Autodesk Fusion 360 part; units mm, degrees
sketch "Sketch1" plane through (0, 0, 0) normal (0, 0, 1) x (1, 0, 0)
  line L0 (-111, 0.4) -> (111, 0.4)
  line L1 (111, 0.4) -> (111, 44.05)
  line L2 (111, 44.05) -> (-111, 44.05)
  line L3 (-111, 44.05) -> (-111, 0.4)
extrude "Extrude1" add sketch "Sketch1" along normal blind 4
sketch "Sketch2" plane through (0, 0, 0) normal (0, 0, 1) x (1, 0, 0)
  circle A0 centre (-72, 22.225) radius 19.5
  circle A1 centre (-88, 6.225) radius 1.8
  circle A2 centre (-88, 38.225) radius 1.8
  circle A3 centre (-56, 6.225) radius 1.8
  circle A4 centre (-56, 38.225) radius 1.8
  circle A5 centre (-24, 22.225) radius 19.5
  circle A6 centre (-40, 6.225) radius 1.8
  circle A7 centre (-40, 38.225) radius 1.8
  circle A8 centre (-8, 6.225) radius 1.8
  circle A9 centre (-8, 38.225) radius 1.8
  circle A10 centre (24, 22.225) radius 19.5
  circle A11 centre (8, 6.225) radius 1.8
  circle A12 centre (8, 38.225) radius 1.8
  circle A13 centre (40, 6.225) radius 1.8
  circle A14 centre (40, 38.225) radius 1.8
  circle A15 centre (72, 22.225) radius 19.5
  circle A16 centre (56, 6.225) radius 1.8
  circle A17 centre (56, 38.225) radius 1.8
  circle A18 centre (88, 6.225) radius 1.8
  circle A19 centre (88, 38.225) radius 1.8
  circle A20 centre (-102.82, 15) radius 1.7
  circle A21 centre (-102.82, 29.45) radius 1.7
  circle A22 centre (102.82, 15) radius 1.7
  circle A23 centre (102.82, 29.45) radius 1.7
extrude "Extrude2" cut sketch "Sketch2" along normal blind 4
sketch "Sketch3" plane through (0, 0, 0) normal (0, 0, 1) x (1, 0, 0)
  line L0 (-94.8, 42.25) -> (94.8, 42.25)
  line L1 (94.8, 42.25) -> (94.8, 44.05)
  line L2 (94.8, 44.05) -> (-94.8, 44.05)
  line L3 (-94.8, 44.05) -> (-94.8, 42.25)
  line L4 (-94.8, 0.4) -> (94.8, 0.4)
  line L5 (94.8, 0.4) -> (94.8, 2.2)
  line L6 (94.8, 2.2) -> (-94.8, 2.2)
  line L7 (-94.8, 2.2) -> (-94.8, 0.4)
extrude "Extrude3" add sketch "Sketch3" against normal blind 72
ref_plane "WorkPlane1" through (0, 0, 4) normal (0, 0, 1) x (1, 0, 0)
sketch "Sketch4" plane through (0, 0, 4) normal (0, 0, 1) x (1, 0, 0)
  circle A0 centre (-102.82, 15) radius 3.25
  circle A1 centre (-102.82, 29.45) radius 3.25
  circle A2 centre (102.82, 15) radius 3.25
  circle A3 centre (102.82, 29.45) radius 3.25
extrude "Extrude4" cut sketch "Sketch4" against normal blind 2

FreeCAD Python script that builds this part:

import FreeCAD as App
import Part
import Sketcher
from FreeCAD import Vector

doc = App.newDocument("Part")
body = doc.addObject("PartDesign::Body", "Body")

# Sketch on XY plane
sketch1 = doc.addObject("Sketcher::SketchObject", "Sketch")
body.addObject(sketch1)
sketch1.AttachmentSupport = (doc.XY_Plane, [""])
sketch1.MapMode = "FlatFace"
sketch1.addGeometry([
    Part.LineSegment(Vector(-111, 44, 0), Vector(-111, 0, 0)),
    Part.LineSegment(Vector(-111, 0, 0), Vector(111, 0, 0)),
    Part.LineSegment(Vector(111, 0, 0), Vector(111, 44, 0)),
    Part.LineSegment(Vector(111, 44, 0), Vector(-111, 44, 0)),
], False)
sketch1.addConstraint([
    Sketcher.Constraint("Coincident", 0, 2, 1, 1),
    Sketcher.Constraint("Coincident", 1, 2, 2, 1),
    Sketcher.Constraint("Coincident", 2, 2, 3, 1),
    Sketcher.Constraint("Coincident", 3, 2, 0, 1),
    Sketcher.Constraint("Vertical", 0),
    Sketcher.Constraint("Horizontal", 1),
    Sketcher.Constraint("Vertical", 2),
    Sketcher.Constraint("Horizontal", 3),
    Sketcher.Constraint("DistanceX", 1, 1, 1, 2, 222.0),
    Sketcher.Constraint("DistanceX", 0, 2, -1, 1, 111.0),
    Sketcher.Constraint("DistanceY", 0, 2, 0, 1, 43.65),
    Sketcher.Constraint("DistanceY", -1, 1, 0, 2, 0.4),
])
pad1 = doc.addObject("PartDesign::Pad", "Pad")
body.addObject(pad1)
pad1.Profile = sketch1
pad1.Length = 4

# Sketch on XY plane
sketch2 = doc.addObject("Sketcher::SketchObject", "Sketch001")
body.addObject(sketch2)
sketch2.AttachmentSupport = (doc.XY_Plane, [""])
sketch2.MapMode = "FlatFace"
sketch2.addGeometry([
    Part.Circle(Vector(-72, 22.2, 0), Vector(0, 0, 1), 19.5),  # 0
    Part.Circle(Vector(-88, 6.2, 0), Vector(0, 0, 1), 1.8),  # 1
    Part.Circle(Vector(-88, 38.2, 0), Vector(0, 0, 1), 1.8),  # 2
    Part.Circle(Vector(-56, 6.2, 0), Vector(0, 0, 1), 1.8),  # 3
    Part.Circle(Vector(-56, 38.2, 0), Vector(0, 0, 1), 1.8),  # 4
    Part.Circle(Vector(-24, 22.2, 0), Vector(0, 0, 1), 19.5),  # 5
    Part.Circle(Vector(-40, 6.2, 0), Vector(0, 0, 1), 1.8),  # 6
    Part.Circle(Vector(-40, 38.2, 0), Vector(0, 0, 1), 1.8),  # 7
    Part.Circle(Vector(-8, 6.2, 0), Vector(0, 0, 1), 1.8),  # 8
    Part.Circle(Vector(-8, 38.2, 0), Vector(0, 0, 1), 1.8),  # 9
    Part.Circle(Vector(24, 22.2, 0), Vector(0, 0, 1), 19.5),  # 10
    Part.Circle(Vector(8, 6.2, 0), Vector(0, 0, 1), 1.8),  # 11
    Part.Circle(Vector(8, 38.2, 0), Vector(0, 0, 1), 1.8),  # 12
    Part.Circle(Vector(40, 6.2, 0), Vector(0, 0, 1), 1.8),  # 13
    Part.Circle(Vector(40, 38.2, 0), Vector(0, 0, 1), 1.8),  # 14
    Part.Circle(Vector(72, 22.2, 0), Vector(0, 0, 1), 19.5),  # 15
    Part.Circle(Vector(56, 6.2, 0), Vector(0, 0, 1), 1.8),  # 16
    Part.Circle(Vector(56, 38.2, 0), Vector(0, 0, 1), 1.8),  # 17
    Part.Circle(Vector(88, 6.2, 0), Vector(0, 0, 1), 1.8),  # 18
    Part.Circle(Vector(88, 38.2, 0), Vector(0, 0, 1), 1.8),  # 19
    Part.Circle(Vector(-102.8, 15, 0), Vector(0, 0, 1), 1.7),  # 20
    Part.Circle(Vector(-102.8, 29.4, 0), Vector(0, 0, 1), 1.7),  # 21
    Part.Circle(Vector(102.8, 15, 0), Vector(0, 0, 1), 1.7),  # 22
    Part.Circle(Vector(102.8, 29.4, 0), Vector(0, 0, 1), 1.7),  # 23
], False)
sketch2.addConstraint([
    Sketcher.Constraint("Equal", 1, 2),
    Sketcher.Constraint("Equal", 2, 3),
    Sketcher.Constraint("Equal", 3, 4),
    Sketcher.Constraint("Equal", 0, 5),
    Sketcher.Constraint("Equal", 4, 6),
    Sketcher.Constraint("Equal", 6, 7),
    Sketcher.Constraint("Equal", 7, 8),
    Sketcher.Constraint("Equal", 8, 9),
    Sketcher.Constraint("Equal", 5, 10),
    Sketcher.Constraint("Equal", 9, 11),
    Sketcher.Constraint("Equal", 11, 12),
    Sketcher.Constraint("Equal", 12, 13),
    Sketcher.Constraint("Equal", 13, 14),
    Sketcher.Constraint("Equal", 10, 15),
    Sketcher.Constraint("Equal", 14, 16),
    Sketcher.Constraint("Equal", 16, 17),
    Sketcher.Constraint("Equal", 17, 18),
    Sketcher.Constraint("Equal", 18, 19),
    Sketcher.Constraint("Equal", 20, 21),
    Sketcher.Constraint("Equal", 21, 22),
    Sketcher.Constraint("Equal", 22, 23),
    Sketcher.Constraint("Symmetric", 5, 3, 10, 3, -2),
    Sketcher.Constraint("Symmetric", 8, 3, 11, 3, -2),
    Sketcher.Constraint("Symmetric", 9, 3, 12, 3, -2),
    Sketcher.Constraint("Symmetric", 6, 3, 13, 3, -2),
    Sketcher.Constraint("Symmetric", 7, 3, 14, 3, -2),
    Sketcher.Constraint("Symmetric", 0, 3, 15, 3, -2),
    Sketcher.Constraint("Symmetric", 3, 3, 16, 3, -2),
    Sketcher.Constraint("Symmetric", 4, 3, 17, 3, -2),
    Sketcher.Constraint("Symmetric", 1, 3, 18, 3, -2),
    Sketcher.Constraint("Symmetric", 2, 3, 19, 3, -2),
    Sketcher.Constraint("Symmetric", 20, 3, 22, 3, -2),
    Sketcher.Constraint("Symmetric", 21, 3, 23, 3, -2),
    Sketcher.Constraint("Horizontal", 1, 3, 3, 3),
    Sketcher.Constraint("Horizontal", 2, 3, 4, 3),
    Sketcher.Constraint("Horizontal", 0, 3, 5, 3),
    Sketcher.Constraint("Horizontal", 3, 3, 6, 3),
    Sketcher.Constraint("Horizontal", 4, 3, 7, 3),
    Sketcher.Constraint("Horizontal", 6, 3, 8, 3),
    Sketcher.Constraint("Horizontal", 7, 3, 9, 3),
    Sketcher.Constraint("Vertical", 1, 3, 2, 3),
    Sketcher.Constraint("Vertical", 3, 3, 4, 3),
    Sketcher.Constraint("Vertical", 6, 3, 7, 3),
    Sketcher.Constraint("Vertical", 8, 3, 9, 3),
    Sketcher.Constraint("Vertical", 20, 3, 21, 3),
    Sketcher.Constraint("Diameter", 0, 39.0),
    Sketcher.Constraint("Diameter", 1, 3.6),
    Sketcher.Constraint("Diameter", 20, 3.4),
    Sketcher.Constraint("DistanceX", 0, 3, -1, 1, 72.0),
    Sketcher.Constraint("DistanceX", 1, 3, -1, 1, 88.0),
    Sketcher.Constraint("DistanceX", 3, 3, -1, 1, 56.0),
    Sketcher.Constraint("DistanceX", 5, 3, -1, 1, 24.0),
    Sketcher.Constraint("DistanceX", 6, 3, -1, 1, 40.0),
    Sketcher.Constraint("DistanceX", 8, 3, -1, 1, 8.0),
    Sketcher.Constraint("DistanceY", -1, 1, 20, 3, 15.0),
    Sketcher.Constraint("DistanceY", 1, 3, 0, 3, 16.0),
    Sketcher.Constraint("DistanceY", 0, 3, 2, 3, 16.0),
    Sketcher.Constraint("DistanceX", 20, 3, -1, 1, 102.82),
    Sketcher.Constraint("DistanceY", -1, 1, 21, 3, 29.45),
    Sketcher.Constraint("DistanceY", -1, 1, 0, 3, 22.225),
])
pocket1 = doc.addObject("PartDesign::Pocket", "Pocket")
body.addObject(pocket1)
pocket1.Profile = sketch2
pocket1.Length = 4
pocket1.Reversed = True

# Sketch on XY plane
sketch3 = doc.addObject("Sketcher::SketchObject", "Sketch002")
body.addObject(sketch3)
sketch3.AttachmentSupport = (doc.XY_Plane, [""])
sketch3.MapMode = "FlatFace"
sketch3.addGeometry([
    Part.LineSegment(Vector(-94.8, 44, 0), Vector(-94.8, 42.2, 0)),  # 0
    Part.LineSegment(Vector(-94.8, 42.2, 0), Vector(94.8, 42.2, 0)),  # 1
    Part.LineSegment(Vector(94.8, 42.2, 0), Vector(94.8, 44, 0)),  # 2
    Part.LineSegment(Vector(94.8, 44, 0), Vector(-94.8, 44, 0)),  # 3
    Part.LineSegment(Vector(-94.8, 2.2, 0), Vector(-94.8, 0.4, 0)),  # 4
    Part.LineSegment(Vector(-94.8, 0.4, 0), Vector(94.8, 0.4, 0)),  # 5
    Part.LineSegment(Vector(94.8, 0.4, 0), Vector(94.8, 2.2, 0)),  # 6
    Part.LineSegment(Vector(94.8, 2.2, 0), Vector(-94.8, 2.2, 0)),  # 7
], False)
sketch3.addConstraint([
    Sketcher.Constraint("Coincident", 0, 2, 1, 1),
    Sketcher.Constraint("Coincident", 1, 2, 2, 1),
    Sketcher.Constraint("Coincident", 2, 2, 3, 1),
    Sketcher.Constraint("Coincident", 3, 2, 0, 1),
    Sketcher.Constraint("Coincident", 4, 2, 5, 1),
    Sketcher.Constraint("Coincident", 5, 2, 6, 1),
    Sketcher.Constraint("Coincident", 6, 2, 7, 1),
    Sketcher.Constraint("Coincident", 7, 2, 4, 1),
    Sketcher.Constraint("Vertical", 0),
    Sketcher.Constraint("Horizontal", 1),
    Sketcher.Constraint("Vertical", 2),
    Sketcher.Constraint("Horizontal", 3),
    Sketcher.Constraint("Vertical", 4),
    Sketcher.Constraint("Horizontal", 5),
    Sketcher.Constraint("Vertical", 6),
    Sketcher.Constraint("Horizontal", 7),
    Sketcher.Constraint("Vertical", 3, 2, 4, 2),
    Sketcher.Constraint("Vertical", 2, 2, 5, 2),
    Sketcher.Constraint("Equal", 2, 4),
    Sketcher.Constraint("DistanceX", 1, 1, 1, 2, 189.6),
    Sketcher.Constraint("DistanceY", 0, 2, 0, 1, 1.8),
    Sketcher.Constraint("DistanceX", 0, 2, -1, 1, 94.8),
    Sketcher.Constraint("DistanceY", -1, 1, 4, 2, 0.4),
    Sketcher.Constraint("DistanceY", -1, 1, 0, 2, 42.25),
])
pad2 = doc.addObject("PartDesign::Pad", "Pad001")
body.addObject(pad2)
pad2.Profile = sketch3
pad2.Length = 72
pad2.Reversed = True

# Sketch on XY plane
sketch4 = doc.addObject("Sketcher::SketchObject", "Sketch003")
body.addObject(sketch4)
sketch4.AttachmentSupport = (doc.XY_Plane, [""])
sketch4.MapMode = "FlatFace"
sketch4.AttachmentOffset = App.Placement(Vector(0, 0, 4), App.Rotation())
sketch4.addGeometry([
    Part.Circle(Vector(-102.8, 15, 0), Vector(0, 0, 1), 3.2),
    Part.Circle(Vector(-102.8, 29.4, 0), Vector(0, 0, 1), 3.2),
    Part.Circle(Vector(102.8, 15, 0), Vector(0, 0, 1), 3.2),
    Part.Circle(Vector(102.8, 29.4, 0), Vector(0, 0, 1), 3.2),
], False)
sketch4.addConstraint([
    Sketcher.Constraint("Equal", 0, 1),
    Sketcher.Constraint("Equal", 1, 2),
    Sketcher.Constraint("Equal", 2, 3),
    Sketcher.Constraint("Symmetric", 0, 3, 2, 3, -2),
    Sketcher.Constraint("Symmetric", 1, 3, 3, 3, -2),
    Sketcher.Constraint("Vertical", 0, 3, 1, 3),
    Sketcher.Constraint("Diameter", 0, 6.5),
    Sketcher.Constraint("DistanceY", -1, 1, 0, 3, 15.0),
    Sketcher.Constraint("DistanceX", 0, 3, -1, 1, 102.82),
    Sketcher.Constraint("DistanceY", -1, 1, 1, 3, 29.45),
])
pocket2 = doc.addObject("PartDesign::Pocket", "Pocket001")
body.addObject(pocket2)
pocket2.Profile = sketch4
pocket2.Length = 2

doc.recompute()
